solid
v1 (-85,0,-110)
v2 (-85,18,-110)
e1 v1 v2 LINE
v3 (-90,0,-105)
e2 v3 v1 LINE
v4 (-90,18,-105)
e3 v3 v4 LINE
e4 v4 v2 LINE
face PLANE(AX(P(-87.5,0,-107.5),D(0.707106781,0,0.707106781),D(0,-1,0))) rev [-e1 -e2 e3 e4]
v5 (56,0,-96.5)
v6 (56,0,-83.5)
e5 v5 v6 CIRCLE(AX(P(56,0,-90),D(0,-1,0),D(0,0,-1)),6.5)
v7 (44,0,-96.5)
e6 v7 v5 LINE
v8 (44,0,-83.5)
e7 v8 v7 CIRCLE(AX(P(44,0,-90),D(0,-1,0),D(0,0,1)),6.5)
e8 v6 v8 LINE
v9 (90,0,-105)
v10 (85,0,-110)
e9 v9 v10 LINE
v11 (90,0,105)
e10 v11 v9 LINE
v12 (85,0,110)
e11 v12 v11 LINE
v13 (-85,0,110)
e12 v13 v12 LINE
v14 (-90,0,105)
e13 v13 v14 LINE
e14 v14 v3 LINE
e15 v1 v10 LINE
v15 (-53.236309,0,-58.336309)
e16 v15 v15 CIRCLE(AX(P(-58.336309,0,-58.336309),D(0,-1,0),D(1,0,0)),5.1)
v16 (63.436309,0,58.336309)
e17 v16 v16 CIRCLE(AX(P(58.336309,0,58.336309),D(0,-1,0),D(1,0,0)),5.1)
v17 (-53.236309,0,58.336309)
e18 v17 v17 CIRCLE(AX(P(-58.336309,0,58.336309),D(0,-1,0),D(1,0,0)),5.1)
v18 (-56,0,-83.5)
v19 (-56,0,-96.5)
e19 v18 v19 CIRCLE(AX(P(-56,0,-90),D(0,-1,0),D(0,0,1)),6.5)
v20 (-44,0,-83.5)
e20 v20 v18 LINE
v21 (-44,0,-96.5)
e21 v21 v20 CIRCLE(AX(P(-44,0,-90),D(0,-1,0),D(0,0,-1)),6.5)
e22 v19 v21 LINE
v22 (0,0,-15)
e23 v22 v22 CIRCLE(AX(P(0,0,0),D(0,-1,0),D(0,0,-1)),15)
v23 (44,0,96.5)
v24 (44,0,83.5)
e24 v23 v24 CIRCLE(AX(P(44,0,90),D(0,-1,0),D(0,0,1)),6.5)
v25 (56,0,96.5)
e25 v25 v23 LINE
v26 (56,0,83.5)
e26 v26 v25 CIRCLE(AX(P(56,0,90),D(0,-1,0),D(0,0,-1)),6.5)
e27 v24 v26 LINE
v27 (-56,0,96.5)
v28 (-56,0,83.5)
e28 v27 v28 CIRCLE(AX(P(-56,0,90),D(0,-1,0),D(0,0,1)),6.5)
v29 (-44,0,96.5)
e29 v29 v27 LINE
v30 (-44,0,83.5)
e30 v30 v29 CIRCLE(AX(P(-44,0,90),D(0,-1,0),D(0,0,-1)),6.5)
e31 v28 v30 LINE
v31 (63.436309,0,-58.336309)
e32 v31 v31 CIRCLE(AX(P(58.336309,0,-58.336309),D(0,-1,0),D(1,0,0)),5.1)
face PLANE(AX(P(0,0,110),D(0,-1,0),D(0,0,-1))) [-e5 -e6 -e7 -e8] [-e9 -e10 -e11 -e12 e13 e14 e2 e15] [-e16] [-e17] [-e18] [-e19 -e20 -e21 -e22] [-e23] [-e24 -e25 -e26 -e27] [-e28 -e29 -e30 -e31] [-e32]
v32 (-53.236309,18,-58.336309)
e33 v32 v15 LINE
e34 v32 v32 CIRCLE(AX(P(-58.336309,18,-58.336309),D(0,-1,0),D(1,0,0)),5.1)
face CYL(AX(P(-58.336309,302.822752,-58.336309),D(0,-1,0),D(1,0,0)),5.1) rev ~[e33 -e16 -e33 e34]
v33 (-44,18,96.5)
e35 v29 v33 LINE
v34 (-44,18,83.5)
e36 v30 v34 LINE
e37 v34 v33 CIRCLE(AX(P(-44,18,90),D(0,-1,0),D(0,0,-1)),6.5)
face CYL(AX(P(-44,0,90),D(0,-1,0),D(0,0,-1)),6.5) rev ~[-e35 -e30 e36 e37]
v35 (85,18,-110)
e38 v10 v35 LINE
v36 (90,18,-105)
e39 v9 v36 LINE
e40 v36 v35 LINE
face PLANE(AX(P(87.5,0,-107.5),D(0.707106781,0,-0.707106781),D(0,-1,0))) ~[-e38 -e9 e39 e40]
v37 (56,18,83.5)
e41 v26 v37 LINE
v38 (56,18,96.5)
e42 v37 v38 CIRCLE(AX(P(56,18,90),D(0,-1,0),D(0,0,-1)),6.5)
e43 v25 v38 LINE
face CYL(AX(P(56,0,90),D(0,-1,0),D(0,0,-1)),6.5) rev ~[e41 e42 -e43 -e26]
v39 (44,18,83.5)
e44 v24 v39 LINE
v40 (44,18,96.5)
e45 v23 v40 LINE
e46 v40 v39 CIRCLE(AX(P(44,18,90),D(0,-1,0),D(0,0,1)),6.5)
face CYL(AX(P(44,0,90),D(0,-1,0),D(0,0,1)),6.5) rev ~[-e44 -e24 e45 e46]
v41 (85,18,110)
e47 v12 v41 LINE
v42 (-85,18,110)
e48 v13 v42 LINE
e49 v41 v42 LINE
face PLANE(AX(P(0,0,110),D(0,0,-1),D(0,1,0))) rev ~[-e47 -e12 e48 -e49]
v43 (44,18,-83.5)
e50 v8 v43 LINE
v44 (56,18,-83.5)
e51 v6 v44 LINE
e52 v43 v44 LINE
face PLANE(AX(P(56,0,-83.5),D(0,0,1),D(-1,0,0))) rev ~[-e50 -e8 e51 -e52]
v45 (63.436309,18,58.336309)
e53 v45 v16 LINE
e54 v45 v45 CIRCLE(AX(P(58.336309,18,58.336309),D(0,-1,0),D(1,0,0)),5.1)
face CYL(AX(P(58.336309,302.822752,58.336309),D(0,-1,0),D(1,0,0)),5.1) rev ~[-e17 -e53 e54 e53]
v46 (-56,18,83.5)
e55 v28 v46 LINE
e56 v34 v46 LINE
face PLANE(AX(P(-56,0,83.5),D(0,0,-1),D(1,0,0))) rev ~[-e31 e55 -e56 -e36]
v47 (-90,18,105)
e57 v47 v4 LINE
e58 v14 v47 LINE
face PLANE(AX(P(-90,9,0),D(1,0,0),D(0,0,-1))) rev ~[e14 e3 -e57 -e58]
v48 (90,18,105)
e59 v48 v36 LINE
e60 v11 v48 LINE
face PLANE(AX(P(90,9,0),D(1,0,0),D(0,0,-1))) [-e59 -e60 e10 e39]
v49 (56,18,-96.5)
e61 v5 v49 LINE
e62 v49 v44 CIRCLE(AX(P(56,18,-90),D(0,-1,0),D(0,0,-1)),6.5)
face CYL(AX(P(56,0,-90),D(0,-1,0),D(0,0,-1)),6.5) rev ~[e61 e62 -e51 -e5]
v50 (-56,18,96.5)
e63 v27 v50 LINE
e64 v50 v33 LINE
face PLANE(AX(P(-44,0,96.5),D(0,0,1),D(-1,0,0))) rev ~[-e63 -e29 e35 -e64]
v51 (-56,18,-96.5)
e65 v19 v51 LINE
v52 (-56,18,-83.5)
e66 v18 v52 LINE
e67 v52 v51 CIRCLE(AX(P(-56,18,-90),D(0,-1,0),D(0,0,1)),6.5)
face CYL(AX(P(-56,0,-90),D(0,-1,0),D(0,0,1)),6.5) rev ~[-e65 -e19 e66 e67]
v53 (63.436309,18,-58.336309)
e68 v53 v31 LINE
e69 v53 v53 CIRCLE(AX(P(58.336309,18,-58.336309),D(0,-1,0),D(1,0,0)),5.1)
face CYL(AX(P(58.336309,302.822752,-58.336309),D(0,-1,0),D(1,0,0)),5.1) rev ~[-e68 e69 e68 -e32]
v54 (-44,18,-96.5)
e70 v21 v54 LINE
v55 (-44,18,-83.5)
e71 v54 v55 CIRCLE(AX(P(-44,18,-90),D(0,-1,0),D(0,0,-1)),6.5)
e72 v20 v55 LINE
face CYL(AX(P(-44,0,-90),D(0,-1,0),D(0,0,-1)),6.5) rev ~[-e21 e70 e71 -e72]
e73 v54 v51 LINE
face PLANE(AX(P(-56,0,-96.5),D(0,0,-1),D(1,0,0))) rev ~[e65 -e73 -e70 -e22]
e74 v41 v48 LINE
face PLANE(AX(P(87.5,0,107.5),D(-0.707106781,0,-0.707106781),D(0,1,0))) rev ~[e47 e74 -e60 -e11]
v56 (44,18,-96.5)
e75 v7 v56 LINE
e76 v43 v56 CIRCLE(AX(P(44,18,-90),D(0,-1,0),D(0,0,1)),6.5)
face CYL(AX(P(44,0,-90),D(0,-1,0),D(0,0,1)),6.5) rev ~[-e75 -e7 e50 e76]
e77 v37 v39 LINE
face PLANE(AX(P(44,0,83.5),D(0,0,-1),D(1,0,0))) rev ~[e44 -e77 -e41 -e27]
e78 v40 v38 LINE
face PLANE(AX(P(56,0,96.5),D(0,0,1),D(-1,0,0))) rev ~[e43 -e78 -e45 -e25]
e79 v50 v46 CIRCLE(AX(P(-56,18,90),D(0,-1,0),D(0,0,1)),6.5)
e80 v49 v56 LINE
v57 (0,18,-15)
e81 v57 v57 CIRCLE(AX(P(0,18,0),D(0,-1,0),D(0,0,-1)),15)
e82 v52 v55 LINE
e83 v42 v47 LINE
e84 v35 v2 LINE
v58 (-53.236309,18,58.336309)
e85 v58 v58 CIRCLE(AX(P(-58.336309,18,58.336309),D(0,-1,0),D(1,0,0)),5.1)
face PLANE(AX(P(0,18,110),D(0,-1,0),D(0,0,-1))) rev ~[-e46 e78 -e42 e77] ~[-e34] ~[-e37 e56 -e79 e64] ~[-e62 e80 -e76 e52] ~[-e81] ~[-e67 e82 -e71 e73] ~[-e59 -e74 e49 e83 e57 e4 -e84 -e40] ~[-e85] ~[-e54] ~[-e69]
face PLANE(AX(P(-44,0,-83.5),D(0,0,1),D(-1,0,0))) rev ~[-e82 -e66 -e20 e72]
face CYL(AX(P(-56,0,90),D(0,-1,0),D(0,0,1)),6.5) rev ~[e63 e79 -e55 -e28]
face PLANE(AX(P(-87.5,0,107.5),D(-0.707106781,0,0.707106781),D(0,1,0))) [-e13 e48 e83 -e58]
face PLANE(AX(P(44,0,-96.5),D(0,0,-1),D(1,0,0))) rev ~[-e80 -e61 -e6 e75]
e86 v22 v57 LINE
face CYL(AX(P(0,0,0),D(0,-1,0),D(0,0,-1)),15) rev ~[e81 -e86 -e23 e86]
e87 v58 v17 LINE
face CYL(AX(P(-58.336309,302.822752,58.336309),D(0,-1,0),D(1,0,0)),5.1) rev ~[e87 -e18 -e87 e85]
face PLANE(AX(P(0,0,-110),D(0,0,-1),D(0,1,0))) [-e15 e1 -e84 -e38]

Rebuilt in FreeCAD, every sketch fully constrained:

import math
import FreeCAD as App
import Part
import Sketcher

V = App.Vector
Q = App.Units.Quantity


def edges_at(feature, points):
    """Names of the edges that pass closest to the given points."""
    edges = feature.Shape.Edges
    near = lambda p: min(range(len(edges)), key=lambda i: edges[i].distToShape(Part.Vertex(*p))[0])
    return sorted({f"Edge{near(p) + 1}" for p in points})

doc = App.newDocument("Part")
body = doc.addObject("PartDesign::Body", "Body")

sketch1 = body.newObject("Sketcher::SketchObject", "Sketch")
sketch1.AttachmentSupport = (doc.getObject("YZ_Plane"), [""])
sketch1.MapMode = "FlatFace"
sketch1.addGeometry([
    Part.LineSegment(V(18, 110, 0), V(0, 110, 0)),
    Part.LineSegment(V(0, 110, 0), V(0, -110, 0)),
    Part.LineSegment(V(0, -110, 0), V(18, -110, 0)),
    Part.LineSegment(V(18, -110, 0), V(18, 110, 0)),
], False)
sketch1.addConstraint([
    Sketcher.Constraint("Coincident", 0, 2, 1, 1),
    Sketcher.Constraint("Coincident", 1, 2, 2, 1),
    Sketcher.Constraint("Coincident", 2, 2, 3, 1),
    Sketcher.Constraint("Coincident", 3, 2, 0, 1),
    Sketcher.Constraint("Horizontal", 0),
    Sketcher.Constraint("Vertical", 1),
    Sketcher.Constraint("Horizontal", 2),
    Sketcher.Constraint("Vertical", 3),
    Sketcher.Constraint("Symmetric", 0, 2, 1, 2, -1, 1),
    Sketcher.Constraint("DistanceX", 0, 2, 0, 1, Q("18 mm")),
    Sketcher.Constraint("DistanceY", 1, 2, 1, 1, Q("220 mm")),
])
pad1 = body.newObject("PartDesign::Pad", "Pad")
pad1.Profile = sketch1
pad1.Length = 180
pad1.Midplane = True

sketch2 = body.newObject("Sketcher::SketchObject", "Sketch001")
sketch2.AttachmentSupport = (doc.getObject("XZ_Plane"), [""])
sketch2.MapMode = "FlatFace"
sketch2.addGeometry(Part.Circle(V(0, 0, 0), V(0, 0, 1), 15), False)
sketch2.addConstraint([
    Sketcher.Constraint("Coincident", 0, 3, -1, 1),
    Sketcher.Constraint("Diameter", 0, Q("30 mm")),
])
pocket1 = body.newObject("PartDesign::Pocket", "Pocket")
pocket1.Profile = sketch2
pocket1.Type = "UpToFirst"
doc.recompute()

chamfer = body.newObject("PartDesign::Chamfer", "Chamfer")
chamfer.Base = (pocket1, edges_at(pocket1, [
    (90, 9, 110),
    (90, 9, -110),
    (-90, 9, 110),
    (-90, 9, -110),
]))
chamfer.Size = 5

sketch3 = body.newObject("Sketcher::SketchObject", "Sketch002")
sketch3.AttachmentSupport = (doc.getObject("XZ_Plane"), [""])
sketch3.MapMode = "FlatFace"
sketch3.addGeometry([
    Part.LineSegment(V(44, 84, 0), V(56, 84, 0)),
    Part.ArcOfCircle(Part.Circle(V(56, 90, 0), V(0, 0, 1), 6), math.radians(-90), math.radians(90)),
    Part.LineSegment(V(56, 96, 0), V(44, 96, 0)),
    Part.ArcOfCircle(Part.Circle(V(44, 90, 0), V(0, 0, 1), 6), math.radians(90), math.radians(270)),
], False)
sketch3.addConstraint([
    Sketcher.Constraint("Tangent", 0, 2, 1, 1),
    Sketcher.Constraint("Tangent", 1, 2, 2, 1),
    Sketcher.Constraint("Tangent", 2, 2, 3, 1),
    Sketcher.Constraint("Tangent", 3, 2, 0, 1),
    Sketcher.Constraint("Horizontal", 0),
    Sketcher.Constraint("Horizontal", 2),
    Sketcher.Constraint("Radius", 1, Q("6.5 mm")),
    Sketcher.Constraint("DistanceX", 0, 1, 0, 2, Q("12 mm")),
    Sketcher.Constraint("DistanceX", -1, 1, 1, 3, Q("56 mm")),
    Sketcher.Constraint("DistanceY", -1, 1, 1, 3, Q("90 mm")),
])
pocket2 = body.newObject("PartDesign::Pocket", "Pocket001")
pocket2.Profile = sketch3
pocket2.Type = "UpToFirst"

sketch4 = body.newObject("Sketcher::SketchObject", "Sketch003")
sketch4.AttachmentSupport = (doc.getObject("XZ_Plane"), [""])
sketch4.MapMode = "FlatFace"
sketch4.addGeometry([
    Part.LineSegment(V(-56, 84, 0), V(-44, 84, 0)),
    Part.ArcOfCircle(Part.Circle(V(-44, 90, 0), V(0, 0, 1), 6), math.radians(-90), math.radians(90)),
    Part.LineSegment(V(-44, 96, 0), V(-56, 96, 0)),
    Part.ArcOfCircle(Part.Circle(V(-56, 90, 0), V(0, 0, 1), 6), math.radians(90), math.radians(270)),
], False)
sketch4.addConstraint([
    Sketcher.Constraint("Tangent", 0, 2, 1, 1),
    Sketcher.Constraint("Tangent", 1, 2, 2, 1),
    Sketcher.Constraint("Tangent", 2, 2, 3, 1),
    Sketcher.Constraint("Tangent", 3, 2, 0, 1),
    Sketcher.Constraint("Horizontal", 0),
    Sketcher.Constraint("Horizontal", 2),
    Sketcher.Constraint("Radius", 1, Q("6.5 mm")),
    Sketcher.Constraint("DistanceX", 0, 1, 0, 2, Q("12 mm")),
    Sketcher.Constraint("DistanceX", 1, 3, -1, 1, Q("44 mm")),
    Sketcher.Constraint("DistanceY", -1, 1, 1, 3, Q("90 mm")),
])
pocket3 = body.newObject("PartDesign::Pocket", "Pocket002")
pocket3.Profile = sketch4
pocket3.Type = "UpToFirst"

sketch5 = body.newObject("Sketcher::SketchObject", "Sketch004")
sketch5.AttachmentSupport = (doc.getObject("XZ_Plane"), [""])
sketch5.MapMode = "FlatFace"
sketch5.addGeometry([
    Part.LineSegment(V(-56, -96, 0), V(-44, -96, 0)),
    Part.ArcOfCircle(Part.Circle(V(-44, -90, 0), V(0, 0, 1), 6), math.radians(-90), math.radians(90)),
    Part.LineSegment(V(-44, -84, 0), V(-56, -84, 0)),
    Part.ArcOfCircle(Part.Circle(V(-56, -90, 0), V(0, 0, 1), 6), math.radians(90), math.radians(270)),
], False)
sketch5.addConstraint([
    Sketcher.Constraint("Tangent", 0, 2, 1, 1),
    Sketcher.Constraint("Tangent", 1, 2, 2, 1),
    Sketcher.Constraint("Tangent", 2, 2, 3, 1),
    Sketcher.Constraint("Tangent", 3, 2, 0, 1),
    Sketcher.Constraint("Horizontal", 0),
    Sketcher.Constraint("Horizontal", 2),
    Sketcher.Constraint("Radius", 1, Q("6.5 mm")),
    Sketcher.Constraint("DistanceX", 0, 1, 0, 2, Q("12 mm")),
    Sketcher.Constraint("DistanceX", 1, 3, -1, 1, Q("44 mm")),
    Sketcher.Constraint("DistanceY", 1, 3, -1, 1, Q("90 mm")),
])
pocket4 = body.newObject("PartDesign::Pocket", "Pocket003")
pocket4.Profile = sketch5
pocket4.Type = "UpToFirst"

sketch6 = body.newObject("Sketcher::SketchObject", "Sketch005")
sketch6.AttachmentSupport = (doc.getObject("XZ_Plane"), [""])
sketch6.MapMode = "FlatFace"
sketch6.addGeometry([
    Part.LineSegment(V(44, -96, 0), V(56, -96, 0)),
    Part.ArcOfCircle(Part.Circle(V(56, -90, 0), V(0, 0, 1), 6), math.radians(-90), math.radians(90)),
    Part.LineSegment(V(56, -84, 0), V(44, -84, 0)),
    Part.ArcOfCircle(Part.Circle(V(44, -90, 0), V(0, 0, 1), 6), math.radians(90), math.radians(270)),
], False)
sketch6.addConstraint([
    Sketcher.Constraint("Tangent", 0, 2, 1, 1),
    Sketcher.Constraint("Tangent", 1, 2, 2, 1),
    Sketcher.Constraint("Tangent", 2, 2, 3, 1),
    Sketcher.Constraint("Tangent", 3, 2, 0, 1),
    Sketcher.Constraint("Horizontal", 0),
    Sketcher.Constraint("Horizontal", 2),
    Sketcher.Constraint("Radius", 1, Q("6.5 mm")),
    Sketcher.Constraint("DistanceX", 0, 1, 0, 2, Q("12 mm")),
    Sketcher.Constraint("DistanceX", -1, 1, 1, 3, Q("56 mm")),
    Sketcher.Constraint("DistanceY", 1, 3, -1, 1, Q("90 mm")),
])
pocket5 = body.newObject("PartDesign::Pocket", "Pocket004")
pocket5.Profile = sketch6
pocket5.Type = "UpToFirst"

sketch7 = body.newObject("Sketcher::SketchObject", "Sketch006")
sketch7.AttachmentSupport = (doc.getObject("XZ_Plane"), [""])
sketch7.MapMode = "FlatFace"
sketch7.AttachmentOffset = App.Placement(V(0, 0, -18), App.Rotation())
sketch7.addGeometry([
    Part.Circle(V(-58, 58, 0), V(0, 0, 1), 5),
    Part.Circle(V(-58, -58, 0), V(0, 0, 1), 5),
    Part.Circle(V(58, -58, 0), V(0, 0, 1), 5),
    Part.Circle(V(58, 58, 0), V(0, 0, 1), 5),
], False)
sketch7.addConstraint([
    Sketcher.Constraint("Equal", 0, 1),
    Sketcher.Constraint("Equal", 1, 2),
    Sketcher.Constraint("Equal", 2, 3),
    Sketcher.Constraint("Symmetric", 0, 3, 2, 3, -1, 1),
    Sketcher.Constraint("Symmetric", 1, 3, 3, 3, -1, 1),
    Sketcher.Constraint("Symmetric", 1, 3, 2, 3, -2),
    Sketcher.Constraint("Diameter", 0, Q("10.2 mm")),
    Sketcher.Constraint("DistanceX", 0, 3, -1, 1, Q("58.336309 mm")),
    Sketcher.Constraint("DistanceY", -1, 1, 0, 3, Q("58.336309 mm")),
])
doc.recompute()
hole = body.newObject("PartDesign::Hole", "Hole")
hole.Profile = sketch7
hole.ThreadType = "None"
hole.Diameter = 10.2
hole.DepthType = "ThroughAll"
hole.Reversed = True

doc.recompute()
